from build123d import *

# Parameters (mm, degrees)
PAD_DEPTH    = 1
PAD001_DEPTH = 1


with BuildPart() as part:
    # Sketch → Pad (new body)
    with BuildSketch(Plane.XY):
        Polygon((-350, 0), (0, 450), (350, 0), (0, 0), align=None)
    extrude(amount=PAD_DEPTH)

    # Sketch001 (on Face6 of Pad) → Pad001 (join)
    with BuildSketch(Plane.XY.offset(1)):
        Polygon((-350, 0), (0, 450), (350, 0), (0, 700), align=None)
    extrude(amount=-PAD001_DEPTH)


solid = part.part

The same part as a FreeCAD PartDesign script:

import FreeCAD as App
import Part
import Sketcher


def add_polygon(sketch, points):
    """Adds a closed chain of lines whose ends are joined by coincident constraints."""
    first, n = sketch.GeometryCount, len(points)
    for a, b in zip(points, points[1:] + points[:1]):
        sketch.addGeometry(Part.LineSegment(App.Vector(*a, 0), App.Vector(*b, 0)), False)
    for i in range(n):
        sketch.addConstraint(Sketcher.Constraint("Coincident", first + i, 2, first + (i + 1) % n, 1))

doc = App.newDocument("Part")
body = doc.addObject("PartDesign::Body", "Body")

sketch1 = body.newObject("Sketcher::SketchObject", "Sketch")
sketch1.AttachmentSupport = (doc.getObject("XY_Plane"), [""])
sketch1.MapMode = "FlatFace"
add_polygon(sketch1, [(0, 450), (-350, 0), (350, 0)])
sketch1.addConstraint([
    Sketcher.Constraint("Horizontal", 1),
    Sketcher.Constraint("Symmetric", 0, 2, 1, 2, -1, 1),
    Sketcher.Constraint("PointOnObject", 2, 2, -2),
    Sketcher.Constraint("DistanceX", 1, 1, 1, 2, 700.0),
    Sketcher.Constraint("DistanceY", -1, 1, 2, 2, 450.0),
])
pad1 = body.newObject("PartDesign::Pad", "Pad")
pad1.Profile = sketch1
pad1.Length = 1

sketch2 = body.newObject("Sketcher::SketchObject", "Sketch001")
sketch2.AttachmentSupport = (doc.getObject("XY_Plane"), [""])
sketch2.MapMode = "FlatFace"
sketch2.AttachmentOffset = App.Placement(App.Vector(0, 0, 1), App.Rotation())
add_polygon(sketch2, [(-350, 0), (0, 450), (350, 0), (0, 700)])
sketch2.addConstraint([
    Sketcher.Constraint("Symmetric", 1, 2, 3, 2, -1, 1),
    Sketcher.Constraint("PointOnObject", 0, 2, -2),
    Sketcher.Constraint("PointOnObject", 1, 2, -1),
    Sketcher.Constraint("PointOnObject", 2, 2, -2),
    Sketcher.Constraint("DistanceY", -1, 1, 0, 2, 450.0),
    Sketcher.Constraint("DistanceX", -1, 1, 1, 2, 350.0),
    Sketcher.Constraint("DistanceY", -1, 1, 2, 2, 700.0),
])
pad2 = body.newObject("PartDesign::Pad", "Pad001")
pad2.Profile = sketch2
pad2.Length = 1
pad2.Reversed = True

doc.recompute()
